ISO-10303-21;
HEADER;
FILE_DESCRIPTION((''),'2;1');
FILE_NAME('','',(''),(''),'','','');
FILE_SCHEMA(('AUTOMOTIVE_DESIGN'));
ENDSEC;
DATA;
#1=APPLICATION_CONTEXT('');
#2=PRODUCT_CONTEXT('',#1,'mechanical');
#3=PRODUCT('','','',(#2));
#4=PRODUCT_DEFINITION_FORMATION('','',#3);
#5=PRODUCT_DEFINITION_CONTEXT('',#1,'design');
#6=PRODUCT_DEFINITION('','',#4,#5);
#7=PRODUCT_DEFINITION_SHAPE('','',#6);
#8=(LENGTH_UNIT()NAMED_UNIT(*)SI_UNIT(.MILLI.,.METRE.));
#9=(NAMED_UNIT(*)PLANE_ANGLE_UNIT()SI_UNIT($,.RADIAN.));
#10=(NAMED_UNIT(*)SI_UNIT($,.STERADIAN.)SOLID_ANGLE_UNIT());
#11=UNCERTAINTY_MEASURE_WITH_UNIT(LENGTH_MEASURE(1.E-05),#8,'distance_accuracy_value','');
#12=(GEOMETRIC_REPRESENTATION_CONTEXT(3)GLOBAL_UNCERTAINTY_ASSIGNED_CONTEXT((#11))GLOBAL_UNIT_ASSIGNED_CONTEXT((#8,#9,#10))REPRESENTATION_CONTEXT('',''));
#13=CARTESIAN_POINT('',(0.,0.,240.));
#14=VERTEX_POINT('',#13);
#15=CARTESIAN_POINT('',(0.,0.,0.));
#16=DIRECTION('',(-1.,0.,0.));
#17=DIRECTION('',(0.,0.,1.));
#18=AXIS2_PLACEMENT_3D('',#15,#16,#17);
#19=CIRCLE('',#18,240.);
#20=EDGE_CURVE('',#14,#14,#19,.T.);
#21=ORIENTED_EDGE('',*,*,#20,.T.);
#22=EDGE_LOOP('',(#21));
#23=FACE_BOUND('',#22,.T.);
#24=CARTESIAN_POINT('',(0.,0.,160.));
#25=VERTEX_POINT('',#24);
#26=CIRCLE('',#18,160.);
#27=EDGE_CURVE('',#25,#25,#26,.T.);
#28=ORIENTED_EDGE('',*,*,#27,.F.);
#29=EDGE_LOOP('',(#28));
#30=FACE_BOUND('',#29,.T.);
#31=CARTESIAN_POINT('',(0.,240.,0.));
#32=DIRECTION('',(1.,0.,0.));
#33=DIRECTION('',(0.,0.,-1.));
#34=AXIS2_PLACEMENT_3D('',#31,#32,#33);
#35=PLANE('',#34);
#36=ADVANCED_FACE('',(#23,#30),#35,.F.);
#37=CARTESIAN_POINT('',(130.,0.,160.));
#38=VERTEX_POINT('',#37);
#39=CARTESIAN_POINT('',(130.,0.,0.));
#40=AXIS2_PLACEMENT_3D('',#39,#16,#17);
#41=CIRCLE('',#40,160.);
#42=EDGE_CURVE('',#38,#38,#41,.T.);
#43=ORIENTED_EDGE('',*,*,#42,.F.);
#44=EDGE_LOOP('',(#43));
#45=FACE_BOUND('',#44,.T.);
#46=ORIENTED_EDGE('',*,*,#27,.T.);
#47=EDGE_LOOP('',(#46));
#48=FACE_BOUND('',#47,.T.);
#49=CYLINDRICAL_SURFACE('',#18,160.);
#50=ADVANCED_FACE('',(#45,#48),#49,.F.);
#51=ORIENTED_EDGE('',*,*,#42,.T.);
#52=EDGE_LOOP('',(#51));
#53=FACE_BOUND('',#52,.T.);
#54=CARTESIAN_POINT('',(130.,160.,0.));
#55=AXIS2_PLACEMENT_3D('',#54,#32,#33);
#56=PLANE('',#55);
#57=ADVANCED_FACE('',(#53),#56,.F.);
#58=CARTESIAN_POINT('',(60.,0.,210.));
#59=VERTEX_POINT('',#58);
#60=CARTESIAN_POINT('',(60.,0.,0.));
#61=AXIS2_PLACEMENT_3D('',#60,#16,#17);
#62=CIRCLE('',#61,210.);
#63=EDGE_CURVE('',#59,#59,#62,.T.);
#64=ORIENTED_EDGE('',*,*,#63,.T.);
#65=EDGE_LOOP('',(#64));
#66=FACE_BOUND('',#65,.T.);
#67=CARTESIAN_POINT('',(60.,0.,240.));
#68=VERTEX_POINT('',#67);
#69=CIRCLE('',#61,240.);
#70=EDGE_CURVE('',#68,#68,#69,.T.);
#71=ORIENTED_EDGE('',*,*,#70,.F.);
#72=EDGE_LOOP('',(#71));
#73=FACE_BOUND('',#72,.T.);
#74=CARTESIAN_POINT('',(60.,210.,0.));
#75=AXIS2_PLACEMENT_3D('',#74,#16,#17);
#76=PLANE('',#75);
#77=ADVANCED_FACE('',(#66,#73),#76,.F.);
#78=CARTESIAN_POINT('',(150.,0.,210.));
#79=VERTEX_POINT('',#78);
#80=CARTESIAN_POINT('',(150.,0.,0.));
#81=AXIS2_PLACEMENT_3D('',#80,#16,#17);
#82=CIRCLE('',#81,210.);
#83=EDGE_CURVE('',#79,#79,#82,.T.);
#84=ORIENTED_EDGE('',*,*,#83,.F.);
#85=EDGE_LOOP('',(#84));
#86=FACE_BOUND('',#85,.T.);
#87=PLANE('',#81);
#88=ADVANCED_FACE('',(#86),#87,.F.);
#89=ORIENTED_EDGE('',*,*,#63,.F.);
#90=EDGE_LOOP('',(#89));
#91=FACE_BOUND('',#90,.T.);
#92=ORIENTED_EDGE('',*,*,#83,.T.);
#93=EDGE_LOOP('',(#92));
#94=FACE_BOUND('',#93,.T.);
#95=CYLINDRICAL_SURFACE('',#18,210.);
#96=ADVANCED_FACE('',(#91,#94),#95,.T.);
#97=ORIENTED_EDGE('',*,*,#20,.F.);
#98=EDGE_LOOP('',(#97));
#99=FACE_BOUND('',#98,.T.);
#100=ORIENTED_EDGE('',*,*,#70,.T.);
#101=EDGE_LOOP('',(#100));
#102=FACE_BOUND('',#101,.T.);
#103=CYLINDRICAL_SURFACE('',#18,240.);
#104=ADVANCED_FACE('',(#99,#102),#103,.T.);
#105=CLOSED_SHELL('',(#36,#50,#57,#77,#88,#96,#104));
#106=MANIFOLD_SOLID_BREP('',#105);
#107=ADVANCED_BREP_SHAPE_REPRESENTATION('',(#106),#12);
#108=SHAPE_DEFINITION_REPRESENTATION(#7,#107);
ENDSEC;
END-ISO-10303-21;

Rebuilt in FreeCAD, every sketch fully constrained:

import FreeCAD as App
import Part
import Sketcher
Q = App.Units.Quantity


def add_polygon(sketch, points):
    """Adds a closed chain of lines whose ends are joined by coincident constraints."""
    first, n = sketch.GeometryCount, len(points)
    for a, b in zip(points, points[1:] + points[:1]):
        sketch.addGeometry(Part.LineSegment(App.Vector(*a, 0), App.Vector(*b, 0)), False)
    for i in range(n):
        sketch.addConstraint(Sketcher.Constraint("Coincident", first + i, 2, first + (i + 1) % n, 1))

doc = App.newDocument("Part")
body = doc.addObject("PartDesign::Body", "Body")

sketch1 = doc.addObject("Sketcher::SketchObject", "Sketch")
body.addObject(sketch1)
sketch1.AttachmentSupport = (doc.XY_Plane, [""])
sketch1.MapMode = "FlatFace"
add_polygon(sketch1, [(150, 0), (150, 210), (60, 210), (60, 240), (0, 240), (0, 160), (130, 160), (130, 0)])
sketch1.addConstraint(Sketcher.Constraint("Vertical", 0))
sketch1.addConstraint(Sketcher.Constraint("Horizontal", 1))
sketch1.addConstraint(Sketcher.Constraint("Vertical", 2))
sketch1.addConstraint(Sketcher.Constraint("Horizontal", 3))
sketch1.addConstraint(Sketcher.Constraint("Vertical", 4))
sketch1.addConstraint(Sketcher.Constraint("Horizontal", 5))
sketch1.addConstraint(Sketcher.Constraint("Vertical", 6))
sketch1.addConstraint(Sketcher.Constraint("Horizontal", 7))
sketch1.addConstraint(Sketcher.Constraint("PointOnObject", 3, 2, -2))
sketch1.addConstraint(Sketcher.Constraint("PointOnObject", 6, 2, -1))
sketch1.addConstraint(Sketcher.Constraint("DistanceX", 1, 2, 1, 1, Q("90 mm")))
sketch1.addConstraint(Sketcher.Constraint("DistanceX", 3, 2, 3, 1, Q("60 mm")))
sketch1.addConstraint(Sketcher.Constraint("DistanceX", 5, 1, 5, 2, Q("130 mm")))
sketch1.addConstraint(Sketcher.Constraint("DistanceY", 0, 1, 0, 2, Q("210 mm")))
sketch1.addConstraint(Sketcher.Constraint("DistanceY", 2, 1, 2, 2, Q("30 mm")))
sketch1.addConstraint(Sketcher.Constraint("DistanceY", 4, 2, 4, 1, Q("80 mm")))
revolution = doc.addObject("PartDesign::Revolution", "Revolution")
body.addObject(revolution)
revolution.Profile = sketch1
revolution.ReferenceAxis = (sketch1, ["H_Axis"])
revolution.Angle = 360

doc.recompute()
